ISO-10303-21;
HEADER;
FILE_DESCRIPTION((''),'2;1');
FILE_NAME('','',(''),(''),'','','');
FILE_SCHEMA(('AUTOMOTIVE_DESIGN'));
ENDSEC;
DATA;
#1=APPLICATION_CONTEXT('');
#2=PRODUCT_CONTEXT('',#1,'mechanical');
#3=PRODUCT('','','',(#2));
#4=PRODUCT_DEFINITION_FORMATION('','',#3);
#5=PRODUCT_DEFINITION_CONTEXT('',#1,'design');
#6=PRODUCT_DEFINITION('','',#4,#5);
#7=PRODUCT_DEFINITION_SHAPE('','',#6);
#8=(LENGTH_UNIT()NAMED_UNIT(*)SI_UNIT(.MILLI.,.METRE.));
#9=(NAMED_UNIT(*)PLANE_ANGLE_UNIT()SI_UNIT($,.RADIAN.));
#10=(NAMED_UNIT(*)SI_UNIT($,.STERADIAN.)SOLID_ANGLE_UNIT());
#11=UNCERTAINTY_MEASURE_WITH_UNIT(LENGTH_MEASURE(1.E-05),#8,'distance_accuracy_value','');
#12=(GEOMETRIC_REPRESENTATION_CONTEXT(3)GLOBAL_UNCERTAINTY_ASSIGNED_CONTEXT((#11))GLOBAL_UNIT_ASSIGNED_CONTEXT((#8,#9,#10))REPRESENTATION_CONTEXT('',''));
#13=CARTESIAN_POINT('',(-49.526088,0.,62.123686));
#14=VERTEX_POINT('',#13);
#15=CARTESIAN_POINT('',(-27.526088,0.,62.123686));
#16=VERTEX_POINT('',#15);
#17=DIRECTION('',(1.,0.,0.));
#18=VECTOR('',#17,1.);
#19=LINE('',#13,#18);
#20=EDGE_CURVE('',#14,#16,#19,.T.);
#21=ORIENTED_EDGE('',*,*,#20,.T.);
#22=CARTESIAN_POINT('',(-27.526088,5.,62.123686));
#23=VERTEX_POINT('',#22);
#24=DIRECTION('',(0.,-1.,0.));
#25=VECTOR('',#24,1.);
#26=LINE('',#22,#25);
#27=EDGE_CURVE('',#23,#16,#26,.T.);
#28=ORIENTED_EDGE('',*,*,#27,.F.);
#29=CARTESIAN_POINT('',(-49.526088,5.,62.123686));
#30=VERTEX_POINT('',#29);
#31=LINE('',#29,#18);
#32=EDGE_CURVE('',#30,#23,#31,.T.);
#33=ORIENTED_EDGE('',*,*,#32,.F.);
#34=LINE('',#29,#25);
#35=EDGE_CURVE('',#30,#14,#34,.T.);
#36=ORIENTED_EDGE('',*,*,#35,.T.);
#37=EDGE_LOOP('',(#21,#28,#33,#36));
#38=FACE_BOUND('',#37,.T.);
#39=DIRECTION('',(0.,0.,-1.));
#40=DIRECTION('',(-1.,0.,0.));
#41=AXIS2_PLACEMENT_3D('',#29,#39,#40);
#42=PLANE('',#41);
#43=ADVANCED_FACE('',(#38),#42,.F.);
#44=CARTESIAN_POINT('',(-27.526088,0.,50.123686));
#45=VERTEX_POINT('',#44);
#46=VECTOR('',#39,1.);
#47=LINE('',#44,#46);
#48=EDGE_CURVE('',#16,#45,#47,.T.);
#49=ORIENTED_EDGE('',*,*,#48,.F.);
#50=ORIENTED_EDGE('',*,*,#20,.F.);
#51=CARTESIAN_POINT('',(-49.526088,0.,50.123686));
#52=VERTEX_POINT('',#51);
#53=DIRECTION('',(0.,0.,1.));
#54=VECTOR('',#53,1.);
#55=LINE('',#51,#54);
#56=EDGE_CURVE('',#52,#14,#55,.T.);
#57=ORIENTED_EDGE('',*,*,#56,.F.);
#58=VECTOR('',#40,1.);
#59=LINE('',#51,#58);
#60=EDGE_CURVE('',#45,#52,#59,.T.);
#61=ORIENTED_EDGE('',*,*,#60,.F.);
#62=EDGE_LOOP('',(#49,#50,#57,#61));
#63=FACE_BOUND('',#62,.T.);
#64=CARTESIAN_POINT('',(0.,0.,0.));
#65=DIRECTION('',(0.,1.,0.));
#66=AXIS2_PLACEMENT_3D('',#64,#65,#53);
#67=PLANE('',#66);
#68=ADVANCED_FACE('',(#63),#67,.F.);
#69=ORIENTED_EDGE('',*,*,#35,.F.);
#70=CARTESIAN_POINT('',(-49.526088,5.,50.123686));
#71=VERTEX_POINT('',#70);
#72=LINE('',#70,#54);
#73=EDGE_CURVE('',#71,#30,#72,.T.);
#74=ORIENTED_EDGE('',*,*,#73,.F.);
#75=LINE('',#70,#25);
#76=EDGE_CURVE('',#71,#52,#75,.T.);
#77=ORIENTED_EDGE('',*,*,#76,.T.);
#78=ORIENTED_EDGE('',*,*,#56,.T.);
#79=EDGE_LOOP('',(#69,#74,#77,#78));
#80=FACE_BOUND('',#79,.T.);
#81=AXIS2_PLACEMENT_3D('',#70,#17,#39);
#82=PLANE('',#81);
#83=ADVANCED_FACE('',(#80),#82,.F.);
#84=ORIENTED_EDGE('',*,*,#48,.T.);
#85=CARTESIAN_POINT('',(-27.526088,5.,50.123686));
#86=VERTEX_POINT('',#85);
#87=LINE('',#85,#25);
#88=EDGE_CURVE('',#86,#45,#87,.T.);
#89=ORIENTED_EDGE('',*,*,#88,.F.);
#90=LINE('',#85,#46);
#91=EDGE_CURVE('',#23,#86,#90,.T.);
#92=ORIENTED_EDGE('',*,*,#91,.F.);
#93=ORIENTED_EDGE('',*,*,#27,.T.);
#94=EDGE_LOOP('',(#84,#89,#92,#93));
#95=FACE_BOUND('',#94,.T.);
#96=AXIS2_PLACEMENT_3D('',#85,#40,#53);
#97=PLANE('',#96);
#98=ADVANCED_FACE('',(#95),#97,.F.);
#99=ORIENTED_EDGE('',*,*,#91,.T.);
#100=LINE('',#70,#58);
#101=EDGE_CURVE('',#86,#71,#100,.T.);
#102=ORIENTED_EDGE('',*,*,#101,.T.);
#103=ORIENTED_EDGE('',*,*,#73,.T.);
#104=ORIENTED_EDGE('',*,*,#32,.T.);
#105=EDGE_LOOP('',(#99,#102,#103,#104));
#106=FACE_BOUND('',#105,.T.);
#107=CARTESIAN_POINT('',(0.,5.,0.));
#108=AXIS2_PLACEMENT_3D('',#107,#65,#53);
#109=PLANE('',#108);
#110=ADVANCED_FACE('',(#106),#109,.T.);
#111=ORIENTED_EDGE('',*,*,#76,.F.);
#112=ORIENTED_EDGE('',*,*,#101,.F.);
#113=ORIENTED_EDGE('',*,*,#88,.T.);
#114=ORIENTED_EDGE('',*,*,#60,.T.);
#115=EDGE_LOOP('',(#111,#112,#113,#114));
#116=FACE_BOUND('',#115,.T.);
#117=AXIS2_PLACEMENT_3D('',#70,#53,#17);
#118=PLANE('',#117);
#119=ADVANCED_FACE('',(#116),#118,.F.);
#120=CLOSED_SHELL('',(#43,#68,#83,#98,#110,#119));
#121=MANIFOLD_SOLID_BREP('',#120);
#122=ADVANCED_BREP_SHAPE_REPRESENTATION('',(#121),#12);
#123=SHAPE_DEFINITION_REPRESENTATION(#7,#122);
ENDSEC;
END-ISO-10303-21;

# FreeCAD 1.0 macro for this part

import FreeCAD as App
import Part
import Sketcher
from FreeCAD import Vector
Q = App.Units.Quantity

doc = App.newDocument("Part")
body = doc.addObject("PartDesign::Body", "Body")

sketch1 = doc.addObject("Sketcher::SketchObject", "Sketch")
body.addObject(sketch1)
sketch1.AttachmentSupport = (doc.XZ_Plane, [""])
sketch1.MapMode = "FlatFace"
sketch1.addGeometry(Part.LineSegment(Vector(-50, 50, 0), Vector(-50, 62, 0)), False)
sketch1.addGeometry(Part.LineSegment(Vector(-50, 62, 0), Vector(-28, 62, 0)), False)
sketch1.addGeometry(Part.LineSegment(Vector(-28, 62, 0), Vector(-28, 50, 0)), False)
sketch1.addGeometry(Part.LineSegment(Vector(-28, 50, 0), Vector(-50, 50, 0)), False)
sketch1.addConstraint(Sketcher.Constraint("Coincident", 0, 2, 1, 1))
sketch1.addConstraint(Sketcher.Constraint("Coincident", 1, 2, 2, 1))
sketch1.addConstraint(Sketcher.Constraint("Coincident", 2, 2, 3, 1))
sketch1.addConstraint(Sketcher.Constraint("Coincident", 3, 2, 0, 1))
sketch1.addConstraint(Sketcher.Constraint("Vertical", 0))
sketch1.addConstraint(Sketcher.Constraint("Horizontal", 1))
sketch1.addConstraint(Sketcher.Constraint("Vertical", 2))
sketch1.addConstraint(Sketcher.Constraint("Horizontal", 3))
sketch1.addConstraint(Sketcher.Constraint("DistanceX", 1, 1, 1, 2, Q("22 mm")))
sketch1.addConstraint(Sketcher.Constraint("DistanceY", 0, 1, 0, 2, Q("12 mm")))
sketch1.addConstraint(Sketcher.Constraint("DistanceX", 0, 2, -1, 1, Q("49.526088 mm")))
sketch1.addConstraint(Sketcher.Constraint("DistanceY", -1, 1, 0, 2, Q("62.123686 mm")))
pad1 = doc.addObject("PartDesign::Pad", "Pad")
body.addObject(pad1)
pad1.Profile = sketch1
pad1.Length = 5
pad1.Reversed = True

doc.recompute()
